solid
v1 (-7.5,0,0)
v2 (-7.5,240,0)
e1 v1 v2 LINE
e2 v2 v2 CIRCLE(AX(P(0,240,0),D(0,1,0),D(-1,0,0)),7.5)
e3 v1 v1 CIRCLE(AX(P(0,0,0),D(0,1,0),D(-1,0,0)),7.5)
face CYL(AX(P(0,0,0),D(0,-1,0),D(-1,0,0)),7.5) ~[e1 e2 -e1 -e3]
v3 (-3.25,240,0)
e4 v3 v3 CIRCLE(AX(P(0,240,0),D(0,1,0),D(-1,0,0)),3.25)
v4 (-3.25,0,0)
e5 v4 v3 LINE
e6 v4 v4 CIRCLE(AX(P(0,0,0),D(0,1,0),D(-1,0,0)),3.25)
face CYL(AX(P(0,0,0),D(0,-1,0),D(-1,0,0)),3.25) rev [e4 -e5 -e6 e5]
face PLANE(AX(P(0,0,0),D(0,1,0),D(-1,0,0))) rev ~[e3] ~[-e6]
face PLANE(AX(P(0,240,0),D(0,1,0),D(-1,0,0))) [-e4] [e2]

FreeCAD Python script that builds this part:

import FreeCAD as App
import Part
import Sketcher
Q = App.Units.Quantity

doc = App.newDocument("Part")
body = doc.addObject("PartDesign::Body", "Body")

# Sketch on XZ plane
sketch1 = body.newObject("Sketcher::SketchObject", "Sketch")
sketch1.AttachmentSupport = (doc.getObject("XZ_Plane"), [""])
sketch1.MapMode = "FlatFace"
sketch1.addGeometry([
    Part.Circle(App.Vector(0, 0, 0), App.Vector(0, 0, 1), 7.5),
    Part.Circle(App.Vector(0, 0, 0), App.Vector(0, 0, 1), 3.2),
], False)
sketch1.addConstraint([
    Sketcher.Constraint("Coincident", 0, 3, -1, 1),
    Sketcher.Constraint("Coincident", 1, 3, -1, 1),
    Sketcher.Constraint("Diameter", 0, Q("15 mm")),
    Sketcher.Constraint("Diameter", 1, Q("6.5 mm")),
])
pad1 = body.newObject("PartDesign::Pad", "Pad")
pad1.Profile = sketch1
pad1.Length = 240
pad1.Reversed = True

doc.recompute()
